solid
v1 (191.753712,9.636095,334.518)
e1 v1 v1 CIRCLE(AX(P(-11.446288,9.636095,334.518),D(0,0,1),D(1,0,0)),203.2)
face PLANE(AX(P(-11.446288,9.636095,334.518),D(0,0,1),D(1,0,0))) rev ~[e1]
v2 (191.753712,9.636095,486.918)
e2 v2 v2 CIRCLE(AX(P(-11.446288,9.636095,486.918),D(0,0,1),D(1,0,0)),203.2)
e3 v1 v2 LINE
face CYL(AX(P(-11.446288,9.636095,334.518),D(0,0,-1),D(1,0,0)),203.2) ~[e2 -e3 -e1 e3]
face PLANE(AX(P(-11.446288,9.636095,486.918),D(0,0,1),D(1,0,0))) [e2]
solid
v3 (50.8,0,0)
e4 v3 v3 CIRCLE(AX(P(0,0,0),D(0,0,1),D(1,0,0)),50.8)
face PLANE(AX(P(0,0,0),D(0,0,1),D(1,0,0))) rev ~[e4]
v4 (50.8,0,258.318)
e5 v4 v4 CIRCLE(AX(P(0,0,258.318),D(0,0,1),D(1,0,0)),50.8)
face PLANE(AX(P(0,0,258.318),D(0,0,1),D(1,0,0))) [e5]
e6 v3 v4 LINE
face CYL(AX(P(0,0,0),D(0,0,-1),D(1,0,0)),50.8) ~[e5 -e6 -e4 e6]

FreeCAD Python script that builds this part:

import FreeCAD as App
import Part
import Sketcher
Q = App.Units.Quantity

doc = App.newDocument("Part")
params = doc.addObject("Spreadsheet::Sheet", "Params")
for row, (alias, value) in enumerate([
    ("sketch1_diameter", "4 in"),
    ("pad1_length", "10.17 in"),
    ("sketch2_diameter", "16 in"),
    ("pad2_length", "6 in"),
], start=1):
    params.set(f"A{row}", alias)
    params.set(f"B{row}", "=" + value)
    params.setAlias(f"B{row}", alias)

body = doc.addObject("PartDesign::Body", "Body")

# Sketch on XY plane
sketch1 = body.newObject("Sketcher::SketchObject", "Sketch")
sketch1.AttachmentSupport = (doc.getObject("XY_Plane"), [""])
sketch1.MapMode = "FlatFace"
sketch1.addGeometry(Part.Circle(App.Vector(0, 0, 0), App.Vector(0, 0, 1), 51), False)
sketch1.addConstraint(Sketcher.Constraint("Coincident", 0, 3, -1, 1))
sketch1.addConstraint(Sketcher.Constraint("Diameter", 0, Q("4 in")))
sketch1.setExpression("Constraints[1]", "Params.sketch1_diameter")
pad1 = body.newObject("PartDesign::Pad", "Pad")
pad1.Profile = sketch1
pad1.setExpression("Length", "Params.pad1_length")
body2 = doc.addObject("PartDesign::Body", "Body001")

# Sketch on XY plane
sketch2 = body2.newObject("Sketcher::SketchObject", "Sketch001")
sketch2.AttachmentSupport = (doc.getObject("XY_Plane001"), [""])
sketch2.MapMode = "FlatFace"
sketch2.AttachmentOffset = App.Placement(App.Vector(0, 0, 13.17 * 25.4), App.Rotation())
sketch2.addGeometry(Part.Circle(App.Vector(-11, 10, 0), App.Vector(0, 0, 1), 203), False)
sketch2.addConstraint(Sketcher.Constraint("Diameter", 0, Q("16 in")))
sketch2.addConstraint(Sketcher.Constraint("DistanceX", 0, 3, -1, 1, Q("11.446288 mm")))
sketch2.addConstraint(Sketcher.Constraint("DistanceY", -1, 1, 0, 3, Q("9.636095 mm")))
sketch2.setExpression("Constraints[0]", "Params.sketch2_diameter")
pad2 = body2.newObject("PartDesign::Pad", "Pad001")
pad2.Profile = sketch2
pad2.setExpression("Length", "Params.pad2_length")

doc.recompute()
